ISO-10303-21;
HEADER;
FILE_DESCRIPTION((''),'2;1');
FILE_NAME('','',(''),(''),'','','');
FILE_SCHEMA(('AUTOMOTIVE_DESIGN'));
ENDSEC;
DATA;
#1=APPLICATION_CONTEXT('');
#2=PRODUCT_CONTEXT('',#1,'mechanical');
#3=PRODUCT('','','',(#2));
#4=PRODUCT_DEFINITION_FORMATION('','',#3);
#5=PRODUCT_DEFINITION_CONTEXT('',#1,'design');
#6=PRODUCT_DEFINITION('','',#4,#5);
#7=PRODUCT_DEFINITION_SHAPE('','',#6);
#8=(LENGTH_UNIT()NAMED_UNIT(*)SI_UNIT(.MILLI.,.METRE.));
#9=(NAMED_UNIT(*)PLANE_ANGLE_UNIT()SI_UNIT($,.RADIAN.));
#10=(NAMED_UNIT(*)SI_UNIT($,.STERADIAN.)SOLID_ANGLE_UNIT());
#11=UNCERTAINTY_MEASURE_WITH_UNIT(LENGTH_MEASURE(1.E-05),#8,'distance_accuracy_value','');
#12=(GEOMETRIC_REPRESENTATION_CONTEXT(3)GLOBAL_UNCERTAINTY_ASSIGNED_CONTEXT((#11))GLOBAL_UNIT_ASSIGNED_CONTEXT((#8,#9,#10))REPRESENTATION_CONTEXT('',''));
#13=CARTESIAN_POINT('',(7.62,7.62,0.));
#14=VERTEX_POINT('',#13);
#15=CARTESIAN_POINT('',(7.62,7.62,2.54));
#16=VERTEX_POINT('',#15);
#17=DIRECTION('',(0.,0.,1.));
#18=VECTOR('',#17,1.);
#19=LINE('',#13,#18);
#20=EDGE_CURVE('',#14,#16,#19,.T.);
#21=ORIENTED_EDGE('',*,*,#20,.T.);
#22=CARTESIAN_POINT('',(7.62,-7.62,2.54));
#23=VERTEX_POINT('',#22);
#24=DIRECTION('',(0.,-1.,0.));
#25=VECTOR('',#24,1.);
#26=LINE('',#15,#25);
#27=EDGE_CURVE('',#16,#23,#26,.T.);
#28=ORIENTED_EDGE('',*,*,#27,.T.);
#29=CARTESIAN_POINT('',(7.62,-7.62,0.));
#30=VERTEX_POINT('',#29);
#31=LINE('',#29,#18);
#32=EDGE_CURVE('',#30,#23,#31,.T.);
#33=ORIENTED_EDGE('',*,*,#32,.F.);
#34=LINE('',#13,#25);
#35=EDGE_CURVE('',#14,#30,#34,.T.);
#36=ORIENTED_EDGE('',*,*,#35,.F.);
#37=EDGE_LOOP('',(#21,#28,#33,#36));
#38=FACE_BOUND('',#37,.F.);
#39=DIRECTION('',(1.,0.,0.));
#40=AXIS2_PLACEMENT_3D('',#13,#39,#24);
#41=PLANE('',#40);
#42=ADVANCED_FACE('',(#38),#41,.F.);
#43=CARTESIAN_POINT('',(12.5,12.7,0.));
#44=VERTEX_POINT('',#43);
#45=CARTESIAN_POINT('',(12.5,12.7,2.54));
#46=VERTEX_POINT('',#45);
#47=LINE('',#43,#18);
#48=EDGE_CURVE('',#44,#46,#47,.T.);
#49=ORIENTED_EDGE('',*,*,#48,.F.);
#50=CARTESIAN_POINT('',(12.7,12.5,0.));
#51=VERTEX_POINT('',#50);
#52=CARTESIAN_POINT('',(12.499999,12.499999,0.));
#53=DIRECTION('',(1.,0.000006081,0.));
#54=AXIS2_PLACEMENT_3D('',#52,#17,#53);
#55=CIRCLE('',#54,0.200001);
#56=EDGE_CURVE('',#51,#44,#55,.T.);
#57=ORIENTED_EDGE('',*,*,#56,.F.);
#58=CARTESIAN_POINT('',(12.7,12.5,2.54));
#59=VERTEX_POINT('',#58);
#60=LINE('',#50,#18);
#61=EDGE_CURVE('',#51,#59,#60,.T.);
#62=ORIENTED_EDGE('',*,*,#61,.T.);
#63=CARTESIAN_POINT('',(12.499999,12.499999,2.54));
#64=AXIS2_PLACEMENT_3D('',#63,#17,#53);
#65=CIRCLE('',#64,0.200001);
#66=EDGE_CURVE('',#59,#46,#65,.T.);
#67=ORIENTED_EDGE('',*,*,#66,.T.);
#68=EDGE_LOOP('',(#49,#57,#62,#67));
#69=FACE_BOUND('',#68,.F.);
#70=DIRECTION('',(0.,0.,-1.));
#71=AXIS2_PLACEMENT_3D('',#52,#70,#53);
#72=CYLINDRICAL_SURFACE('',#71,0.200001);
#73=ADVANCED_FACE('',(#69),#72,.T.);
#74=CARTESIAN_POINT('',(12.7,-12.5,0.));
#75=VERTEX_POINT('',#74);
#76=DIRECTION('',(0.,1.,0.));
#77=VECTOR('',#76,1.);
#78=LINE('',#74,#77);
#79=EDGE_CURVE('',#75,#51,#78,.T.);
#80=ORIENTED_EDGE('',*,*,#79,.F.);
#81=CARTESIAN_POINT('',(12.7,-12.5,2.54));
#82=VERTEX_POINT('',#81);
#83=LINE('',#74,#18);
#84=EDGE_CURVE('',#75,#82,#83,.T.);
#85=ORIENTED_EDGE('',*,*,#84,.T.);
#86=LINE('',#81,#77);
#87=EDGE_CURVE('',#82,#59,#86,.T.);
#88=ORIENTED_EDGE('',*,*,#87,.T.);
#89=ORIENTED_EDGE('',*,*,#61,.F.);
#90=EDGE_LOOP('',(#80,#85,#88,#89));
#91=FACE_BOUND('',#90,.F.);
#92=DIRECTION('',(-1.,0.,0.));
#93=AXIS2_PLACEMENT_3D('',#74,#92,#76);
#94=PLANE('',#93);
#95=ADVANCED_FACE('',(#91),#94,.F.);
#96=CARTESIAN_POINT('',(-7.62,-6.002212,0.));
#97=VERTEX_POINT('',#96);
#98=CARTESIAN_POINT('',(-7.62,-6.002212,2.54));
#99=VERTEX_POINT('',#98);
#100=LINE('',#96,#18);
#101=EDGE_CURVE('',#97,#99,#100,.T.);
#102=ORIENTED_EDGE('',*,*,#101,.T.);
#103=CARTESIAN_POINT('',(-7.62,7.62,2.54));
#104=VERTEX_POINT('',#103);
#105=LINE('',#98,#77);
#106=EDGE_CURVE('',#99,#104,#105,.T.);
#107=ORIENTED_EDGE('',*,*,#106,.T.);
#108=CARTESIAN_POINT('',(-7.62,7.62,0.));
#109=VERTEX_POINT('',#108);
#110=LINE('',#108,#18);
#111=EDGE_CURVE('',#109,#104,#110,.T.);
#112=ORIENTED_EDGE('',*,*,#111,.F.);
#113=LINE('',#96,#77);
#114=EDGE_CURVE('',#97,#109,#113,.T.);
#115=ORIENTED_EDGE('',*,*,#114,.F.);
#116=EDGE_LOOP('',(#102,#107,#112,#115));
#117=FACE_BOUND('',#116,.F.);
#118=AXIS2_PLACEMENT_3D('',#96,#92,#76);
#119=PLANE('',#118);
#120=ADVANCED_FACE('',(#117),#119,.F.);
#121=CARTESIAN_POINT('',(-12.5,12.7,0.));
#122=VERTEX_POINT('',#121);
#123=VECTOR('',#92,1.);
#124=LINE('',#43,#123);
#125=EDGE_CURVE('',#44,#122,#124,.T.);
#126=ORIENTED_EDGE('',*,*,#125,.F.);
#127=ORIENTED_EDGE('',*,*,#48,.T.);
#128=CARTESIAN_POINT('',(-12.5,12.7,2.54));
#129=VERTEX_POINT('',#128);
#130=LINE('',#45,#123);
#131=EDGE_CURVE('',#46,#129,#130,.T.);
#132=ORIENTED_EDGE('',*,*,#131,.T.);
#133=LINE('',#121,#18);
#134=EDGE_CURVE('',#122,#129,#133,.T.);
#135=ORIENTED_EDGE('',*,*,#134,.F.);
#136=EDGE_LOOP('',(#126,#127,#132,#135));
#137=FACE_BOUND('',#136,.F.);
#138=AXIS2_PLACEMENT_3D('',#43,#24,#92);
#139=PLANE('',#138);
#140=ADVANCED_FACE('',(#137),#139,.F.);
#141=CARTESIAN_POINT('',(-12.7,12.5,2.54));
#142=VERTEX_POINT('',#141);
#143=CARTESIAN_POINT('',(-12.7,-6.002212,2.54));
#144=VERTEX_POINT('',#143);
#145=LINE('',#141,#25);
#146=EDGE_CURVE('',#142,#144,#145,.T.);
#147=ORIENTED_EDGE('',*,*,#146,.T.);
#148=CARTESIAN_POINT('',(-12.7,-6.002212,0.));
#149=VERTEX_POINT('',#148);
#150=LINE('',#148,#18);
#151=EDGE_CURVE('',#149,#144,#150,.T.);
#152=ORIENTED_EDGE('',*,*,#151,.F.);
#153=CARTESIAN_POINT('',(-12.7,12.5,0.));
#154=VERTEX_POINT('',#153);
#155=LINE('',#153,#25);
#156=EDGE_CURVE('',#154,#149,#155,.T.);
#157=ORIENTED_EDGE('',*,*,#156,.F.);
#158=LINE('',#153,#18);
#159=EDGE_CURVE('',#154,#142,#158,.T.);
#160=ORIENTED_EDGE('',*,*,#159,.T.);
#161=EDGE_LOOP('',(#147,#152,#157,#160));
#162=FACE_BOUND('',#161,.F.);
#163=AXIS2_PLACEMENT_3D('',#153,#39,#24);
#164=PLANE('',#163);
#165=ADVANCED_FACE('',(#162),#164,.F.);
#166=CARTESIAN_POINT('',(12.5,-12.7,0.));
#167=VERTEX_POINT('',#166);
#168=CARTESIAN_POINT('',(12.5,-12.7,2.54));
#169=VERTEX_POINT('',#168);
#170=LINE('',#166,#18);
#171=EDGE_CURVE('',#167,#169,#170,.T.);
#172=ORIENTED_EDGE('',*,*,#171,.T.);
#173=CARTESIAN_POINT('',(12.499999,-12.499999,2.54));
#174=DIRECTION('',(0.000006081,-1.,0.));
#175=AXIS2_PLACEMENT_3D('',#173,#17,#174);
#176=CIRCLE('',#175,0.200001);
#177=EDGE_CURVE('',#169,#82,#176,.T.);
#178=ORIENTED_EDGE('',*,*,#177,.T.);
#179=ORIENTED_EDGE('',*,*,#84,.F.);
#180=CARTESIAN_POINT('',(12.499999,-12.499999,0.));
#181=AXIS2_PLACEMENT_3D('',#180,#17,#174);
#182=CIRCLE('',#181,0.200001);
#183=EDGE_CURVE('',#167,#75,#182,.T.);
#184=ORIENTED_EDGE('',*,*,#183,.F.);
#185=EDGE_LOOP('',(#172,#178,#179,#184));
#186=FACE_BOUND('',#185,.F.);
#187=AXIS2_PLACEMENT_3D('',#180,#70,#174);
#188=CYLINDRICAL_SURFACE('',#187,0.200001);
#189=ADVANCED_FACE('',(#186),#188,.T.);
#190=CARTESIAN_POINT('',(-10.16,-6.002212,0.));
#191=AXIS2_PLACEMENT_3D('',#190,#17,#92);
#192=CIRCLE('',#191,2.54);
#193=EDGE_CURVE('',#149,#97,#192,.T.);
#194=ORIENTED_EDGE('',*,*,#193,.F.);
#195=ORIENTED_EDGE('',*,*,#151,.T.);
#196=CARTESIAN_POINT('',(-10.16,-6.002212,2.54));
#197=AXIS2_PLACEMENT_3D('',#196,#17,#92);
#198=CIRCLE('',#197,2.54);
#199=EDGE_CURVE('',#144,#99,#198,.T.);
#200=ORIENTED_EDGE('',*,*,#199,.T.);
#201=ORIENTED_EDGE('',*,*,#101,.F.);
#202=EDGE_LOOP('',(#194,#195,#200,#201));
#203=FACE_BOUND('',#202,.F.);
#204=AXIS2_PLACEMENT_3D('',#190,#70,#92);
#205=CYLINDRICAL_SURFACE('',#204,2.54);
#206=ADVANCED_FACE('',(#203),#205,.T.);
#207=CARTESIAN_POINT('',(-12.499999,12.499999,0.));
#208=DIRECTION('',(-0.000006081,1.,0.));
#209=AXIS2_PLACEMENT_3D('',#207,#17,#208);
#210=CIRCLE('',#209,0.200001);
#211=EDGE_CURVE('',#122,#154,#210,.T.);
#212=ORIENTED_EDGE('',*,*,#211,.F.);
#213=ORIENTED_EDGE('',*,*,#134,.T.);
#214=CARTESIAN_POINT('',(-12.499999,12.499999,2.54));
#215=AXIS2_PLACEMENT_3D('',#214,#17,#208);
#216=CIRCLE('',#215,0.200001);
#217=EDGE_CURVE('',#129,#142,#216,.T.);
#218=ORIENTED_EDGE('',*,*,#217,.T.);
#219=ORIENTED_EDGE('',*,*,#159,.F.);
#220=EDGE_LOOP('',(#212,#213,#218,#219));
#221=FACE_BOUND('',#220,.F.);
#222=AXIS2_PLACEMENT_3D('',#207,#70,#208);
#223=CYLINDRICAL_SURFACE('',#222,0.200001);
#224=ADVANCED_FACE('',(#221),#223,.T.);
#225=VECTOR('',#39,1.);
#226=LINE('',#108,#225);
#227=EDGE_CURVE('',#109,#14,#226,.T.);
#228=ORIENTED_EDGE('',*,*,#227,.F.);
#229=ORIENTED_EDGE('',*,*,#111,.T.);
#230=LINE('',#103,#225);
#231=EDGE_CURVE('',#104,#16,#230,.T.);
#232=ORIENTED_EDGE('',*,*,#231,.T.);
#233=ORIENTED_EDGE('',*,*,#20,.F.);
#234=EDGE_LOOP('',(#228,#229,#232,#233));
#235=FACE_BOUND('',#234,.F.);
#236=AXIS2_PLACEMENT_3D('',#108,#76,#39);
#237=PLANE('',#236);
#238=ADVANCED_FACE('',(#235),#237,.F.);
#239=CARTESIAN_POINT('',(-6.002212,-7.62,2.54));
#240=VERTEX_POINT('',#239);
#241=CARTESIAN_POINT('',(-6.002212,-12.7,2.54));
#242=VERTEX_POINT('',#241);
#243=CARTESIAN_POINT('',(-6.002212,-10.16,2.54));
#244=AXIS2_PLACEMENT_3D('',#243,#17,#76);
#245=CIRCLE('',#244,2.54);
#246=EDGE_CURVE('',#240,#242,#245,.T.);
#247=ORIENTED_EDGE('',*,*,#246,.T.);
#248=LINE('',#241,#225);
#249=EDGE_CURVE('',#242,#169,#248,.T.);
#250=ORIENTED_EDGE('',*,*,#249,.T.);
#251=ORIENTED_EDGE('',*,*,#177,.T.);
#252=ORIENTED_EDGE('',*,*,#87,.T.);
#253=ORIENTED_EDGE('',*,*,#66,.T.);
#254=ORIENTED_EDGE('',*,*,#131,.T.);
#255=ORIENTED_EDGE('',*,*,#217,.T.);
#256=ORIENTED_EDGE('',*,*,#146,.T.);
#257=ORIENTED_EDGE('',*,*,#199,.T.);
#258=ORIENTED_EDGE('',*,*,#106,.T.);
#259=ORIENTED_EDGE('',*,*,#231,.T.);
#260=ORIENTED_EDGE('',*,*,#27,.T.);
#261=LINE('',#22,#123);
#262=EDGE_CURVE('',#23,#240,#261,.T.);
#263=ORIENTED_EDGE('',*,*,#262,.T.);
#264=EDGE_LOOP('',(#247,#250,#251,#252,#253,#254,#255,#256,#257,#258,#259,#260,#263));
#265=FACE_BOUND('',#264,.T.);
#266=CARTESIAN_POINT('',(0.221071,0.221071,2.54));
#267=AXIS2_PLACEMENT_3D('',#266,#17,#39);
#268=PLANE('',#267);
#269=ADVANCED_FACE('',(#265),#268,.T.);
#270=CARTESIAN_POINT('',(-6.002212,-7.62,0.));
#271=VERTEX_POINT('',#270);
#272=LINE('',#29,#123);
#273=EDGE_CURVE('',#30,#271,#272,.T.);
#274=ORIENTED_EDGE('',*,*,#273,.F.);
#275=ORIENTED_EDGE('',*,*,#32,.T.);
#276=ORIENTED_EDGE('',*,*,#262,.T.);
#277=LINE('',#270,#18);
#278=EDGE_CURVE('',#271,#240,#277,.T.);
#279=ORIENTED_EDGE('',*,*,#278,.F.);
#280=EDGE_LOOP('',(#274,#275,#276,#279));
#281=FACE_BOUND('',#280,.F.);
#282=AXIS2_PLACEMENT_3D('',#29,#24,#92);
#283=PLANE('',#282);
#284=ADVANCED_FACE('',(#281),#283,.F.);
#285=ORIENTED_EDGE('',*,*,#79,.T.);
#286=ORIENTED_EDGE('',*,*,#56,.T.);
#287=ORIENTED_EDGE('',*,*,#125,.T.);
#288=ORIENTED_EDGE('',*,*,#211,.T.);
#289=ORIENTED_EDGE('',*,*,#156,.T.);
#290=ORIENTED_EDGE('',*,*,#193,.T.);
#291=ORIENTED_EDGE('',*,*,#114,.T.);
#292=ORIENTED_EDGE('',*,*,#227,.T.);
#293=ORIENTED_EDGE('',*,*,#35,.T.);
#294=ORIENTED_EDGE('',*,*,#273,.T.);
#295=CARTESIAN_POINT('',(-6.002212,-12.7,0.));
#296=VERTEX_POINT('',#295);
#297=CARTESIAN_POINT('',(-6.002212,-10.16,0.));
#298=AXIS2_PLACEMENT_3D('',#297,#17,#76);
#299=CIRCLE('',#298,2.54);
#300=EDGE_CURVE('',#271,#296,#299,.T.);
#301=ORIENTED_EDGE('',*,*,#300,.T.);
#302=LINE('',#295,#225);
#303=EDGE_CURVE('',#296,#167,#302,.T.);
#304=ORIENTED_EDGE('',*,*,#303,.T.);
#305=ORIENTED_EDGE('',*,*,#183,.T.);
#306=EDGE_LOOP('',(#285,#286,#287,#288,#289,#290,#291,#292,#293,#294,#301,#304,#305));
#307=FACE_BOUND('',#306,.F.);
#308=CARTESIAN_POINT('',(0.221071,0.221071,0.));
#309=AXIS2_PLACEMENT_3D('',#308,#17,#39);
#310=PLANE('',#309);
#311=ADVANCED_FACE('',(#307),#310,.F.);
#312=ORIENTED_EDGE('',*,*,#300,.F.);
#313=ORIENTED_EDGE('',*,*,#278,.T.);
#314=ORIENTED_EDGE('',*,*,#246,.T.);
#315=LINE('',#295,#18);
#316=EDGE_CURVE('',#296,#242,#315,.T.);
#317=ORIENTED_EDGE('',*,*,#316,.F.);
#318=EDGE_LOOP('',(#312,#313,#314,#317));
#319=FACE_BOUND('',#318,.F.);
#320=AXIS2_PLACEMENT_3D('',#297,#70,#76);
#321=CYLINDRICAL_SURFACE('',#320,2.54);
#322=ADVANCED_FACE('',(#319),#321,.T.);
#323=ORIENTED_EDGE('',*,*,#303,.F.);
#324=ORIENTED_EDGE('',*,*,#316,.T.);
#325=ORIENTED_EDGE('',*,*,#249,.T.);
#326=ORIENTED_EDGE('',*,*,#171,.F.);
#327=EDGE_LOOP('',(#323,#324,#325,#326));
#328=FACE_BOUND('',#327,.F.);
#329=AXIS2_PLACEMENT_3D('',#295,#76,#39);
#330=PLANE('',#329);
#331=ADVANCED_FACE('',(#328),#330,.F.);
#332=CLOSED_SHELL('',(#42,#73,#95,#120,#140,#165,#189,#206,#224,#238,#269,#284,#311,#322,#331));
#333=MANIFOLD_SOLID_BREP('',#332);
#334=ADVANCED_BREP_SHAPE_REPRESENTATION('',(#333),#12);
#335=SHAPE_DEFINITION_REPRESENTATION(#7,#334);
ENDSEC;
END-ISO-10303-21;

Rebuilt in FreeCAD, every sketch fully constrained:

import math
import FreeCAD as App
import Part
import Sketcher

V = App.Vector
Q = App.Units.Quantity

doc = App.newDocument("Part")
params = doc.addObject("Spreadsheet::Sheet", "Params")
for row, (alias, value) in enumerate([
    ("sketch1_radius", "0.1 in"),
    ("sketch1_width", "0.6 in"),
    ("pad1_length", "0.1 in"),
], start=1):
    params.set(f"A{row}", alias)
    params.set(f"B{row}", "=" + value)
    params.setAlias(f"B{row}", alias)

body = doc.addObject("PartDesign::Body", "Body")

# Sketch on XY plane
sketch1 = body.newObject("Sketcher::SketchObject", "Sketch")
sketch1.AttachmentSupport = (doc.getObject("XY_Plane"), [""])
sketch1.MapMode = "FlatFace"
sketch1.addGeometry([
    Part.LineSegment(V(-6, -12.7, 0), V(12.5, -12.7, 0)),  # 0
    Part.ArcOfCircle(Part.Circle(V(12.5, -12.5, 0), V(0, 0, 1), 0.2), math.radians(-90), math.radians(0)),  # 1
    Part.LineSegment(V(12.7, -12.5, 0), V(12.7, 12.5, 0)),  # 2
    Part.ArcOfCircle(Part.Circle(V(12.5, 12.5, 0), V(0, 0, 1), 0.2), math.radians(0), math.radians(90)),  # 3
    Part.LineSegment(V(12.5, 12.7, 0), V(-12.5, 12.7, 0)),  # 4
    Part.ArcOfCircle(Part.Circle(V(-12.5, 12.5, 0), V(0, 0, 1), 0.2), math.radians(90), math.radians(180)),  # 5
    Part.LineSegment(V(-12.7, 12.5, 0), V(-12.7, -6, 0)),  # 6
    Part.ArcOfCircle(Part.Circle(V(-10.16, -6, 0), V(0, 0, 1), 2.54), math.radians(180), math.radians(360)),  # 7
    Part.LineSegment(V(-7.62, -6, 0), V(-7.62, 7.62, 0)),  # 8
    Part.LineSegment(V(-7.62, 7.62, 0), V(7.62, 7.62, 0)),  # 9
    Part.LineSegment(V(7.62, 7.62, 0), V(7.62, -7.62, 0)),  # 10
    Part.LineSegment(V(7.62, -7.62, 0), V(-6, -7.62, 0)),  # 11
    Part.ArcOfCircle(Part.Circle(V(-6, -10.16, 0), V(0, 0, 1), 2.54), math.radians(90), math.radians(270)),  # 12
], False)
sketch1.addConstraint([
    Sketcher.Constraint("Coincident", 0, 2, 1, 1),
    Sketcher.Constraint("Coincident", 1, 2, 2, 1),
    Sketcher.Constraint("Coincident", 2, 2, 3, 1),
    Sketcher.Constraint("Coincident", 3, 2, 4, 1),
    Sketcher.Constraint("Coincident", 4, 2, 5, 1),
    Sketcher.Constraint("Coincident", 5, 2, 6, 1),
    Sketcher.Constraint("Tangent", 6, 2, 7, 1),
    Sketcher.Constraint("Tangent", 7, 2, 8, 1),
    Sketcher.Constraint("Coincident", 8, 2, 9, 1),
    Sketcher.Constraint("Coincident", 9, 2, 10, 1),
    Sketcher.Constraint("Coincident", 10, 2, 11, 1),
    Sketcher.Constraint("Tangent", 11, 2, 12, 1),
    Sketcher.Constraint("Tangent", 12, 2, 0, 1),
    Sketcher.Constraint("Horizontal", 0),
    Sketcher.Constraint("Vertical", 2),
    Sketcher.Constraint("Horizontal", 4),
    Sketcher.Constraint("Vertical", 6),
    Sketcher.Constraint("Vertical", 8),
    Sketcher.Constraint("Horizontal", 9),
    Sketcher.Constraint("Vertical", 10),
    Sketcher.Constraint("Horizontal", 11),
    Sketcher.Constraint("Equal", 1, 3),
    Sketcher.Constraint("Equal", 3, 5),
    Sketcher.Constraint("Equal", 7, 12),
    Sketcher.Constraint("Symmetric", 1, 3, 5, 3, -1, 1),
    Sketcher.Constraint("Symmetric", 8, 2, 10, 2, -1, 1),
    Sketcher.Constraint("Horizontal", 5, 3, 2, 2),
    Sketcher.Constraint("Horizontal", 2, 2, 5, 2),
    Sketcher.Constraint("Vertical", 3, 3, 0, 2),
    Sketcher.Constraint("Vertical", 0, 2, 3, 2),
    Sketcher.Constraint("Vertical", 5, 3, 4, 2),
    Sketcher.Constraint("Equal", 4, 2),
    Sketcher.Constraint("Equal", 0, 6),
    Sketcher.Constraint("Equal", 9, 10),
    Sketcher.Constraint("Radius", 7, Q("0.1 in")),
    Sketcher.Constraint("DistanceX", 9, 1, 9, 2, Q("0.6 in")),
    Sketcher.Constraint("Radius", 1, 0.200001),
    Sketcher.Constraint("DistanceX", 0, 1, 0, 2, 18.502212),
])
sketch1.setExpression("Constraints[34]", "Params.sketch1_radius")
sketch1.setExpression("Constraints[35]", "Params.sketch1_width")
pad1 = body.newObject("PartDesign::Pad", "Pad")
pad1.Profile = sketch1
pad1.setExpression("Length", "Params.pad1_length")

doc.recompute()
